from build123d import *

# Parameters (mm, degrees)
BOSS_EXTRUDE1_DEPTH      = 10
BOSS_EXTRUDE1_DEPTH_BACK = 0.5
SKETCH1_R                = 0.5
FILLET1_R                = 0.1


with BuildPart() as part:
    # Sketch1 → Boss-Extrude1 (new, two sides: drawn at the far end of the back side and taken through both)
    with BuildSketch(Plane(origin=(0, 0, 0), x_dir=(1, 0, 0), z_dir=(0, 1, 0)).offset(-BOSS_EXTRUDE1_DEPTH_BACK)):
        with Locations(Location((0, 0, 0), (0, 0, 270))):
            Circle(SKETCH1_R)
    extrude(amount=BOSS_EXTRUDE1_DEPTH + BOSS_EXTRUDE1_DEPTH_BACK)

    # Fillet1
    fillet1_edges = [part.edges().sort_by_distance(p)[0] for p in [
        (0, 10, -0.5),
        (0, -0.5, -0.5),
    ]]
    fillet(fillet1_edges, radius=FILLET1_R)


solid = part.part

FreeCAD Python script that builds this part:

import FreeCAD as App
import Part
import Sketcher
from FreeCAD import Vector
Q = App.Units.Quantity


def edges_at(feature, points):
    """Names of the edges that pass closest to the given points."""
    edges = feature.Shape.Edges
    near = lambda p: min(range(len(edges)), key=lambda i: edges[i].distToShape(Part.Vertex(*p))[0])
    return sorted({f"Edge{near(p) + 1}" for p in points})

doc = App.newDocument("Part")
params = doc.addObject("Spreadsheet::Sheet", "Params")
for row, (alias, value) in enumerate([
    ("sketch1_diameter", "1 mm"),
    ("pad1_length", "10 mm"),
    ("pad1_length2", "0.5 mm"),
    ("fillet_radius", "0.1 mm"),
], start=1):
    params.set(f"A{row}", alias)
    params.set(f"B{row}", "=" + value)
    params.setAlias(f"B{row}", alias)

body = doc.addObject("PartDesign::Body", "Body")

# Sketch on XZ plane
sketch1 = body.newObject("Sketcher::SketchObject", "Sketch")
sketch1.AttachmentSupport = (doc.getObject("XZ_Plane"), [""])
sketch1.MapMode = "FlatFace"
sketch1.addGeometry(Part.Circle(Vector(0, 0, 0), Vector(0, 0, 1), 0.5), False)
sketch1.addConstraint(Sketcher.Constraint("Coincident", 0, 3, -1, 1))
sketch1.addConstraint(Sketcher.Constraint("Diameter", 0, Q("1 mm")))
sketch1.setExpression("Constraints[1]", "Params.sketch1_diameter")
pad1 = body.newObject("PartDesign::Pad", "Pad")
pad1.Profile = sketch1
pad1.Type = "TwoLengths"
pad1.setExpression("Length", "Params.pad1_length")
pad1.setExpression("Length2", "Params.pad1_length2")
pad1.Reversed = True
doc.recompute()

fillet = body.newObject("PartDesign::Fillet", "Fillet")
fillet.Base = (pad1, edges_at(pad1, [(0, 10, -0.5), (0, -0.5, -0.5)]))
fillet.setExpression("Radius", "Params.fillet_radius")

doc.recompute()
